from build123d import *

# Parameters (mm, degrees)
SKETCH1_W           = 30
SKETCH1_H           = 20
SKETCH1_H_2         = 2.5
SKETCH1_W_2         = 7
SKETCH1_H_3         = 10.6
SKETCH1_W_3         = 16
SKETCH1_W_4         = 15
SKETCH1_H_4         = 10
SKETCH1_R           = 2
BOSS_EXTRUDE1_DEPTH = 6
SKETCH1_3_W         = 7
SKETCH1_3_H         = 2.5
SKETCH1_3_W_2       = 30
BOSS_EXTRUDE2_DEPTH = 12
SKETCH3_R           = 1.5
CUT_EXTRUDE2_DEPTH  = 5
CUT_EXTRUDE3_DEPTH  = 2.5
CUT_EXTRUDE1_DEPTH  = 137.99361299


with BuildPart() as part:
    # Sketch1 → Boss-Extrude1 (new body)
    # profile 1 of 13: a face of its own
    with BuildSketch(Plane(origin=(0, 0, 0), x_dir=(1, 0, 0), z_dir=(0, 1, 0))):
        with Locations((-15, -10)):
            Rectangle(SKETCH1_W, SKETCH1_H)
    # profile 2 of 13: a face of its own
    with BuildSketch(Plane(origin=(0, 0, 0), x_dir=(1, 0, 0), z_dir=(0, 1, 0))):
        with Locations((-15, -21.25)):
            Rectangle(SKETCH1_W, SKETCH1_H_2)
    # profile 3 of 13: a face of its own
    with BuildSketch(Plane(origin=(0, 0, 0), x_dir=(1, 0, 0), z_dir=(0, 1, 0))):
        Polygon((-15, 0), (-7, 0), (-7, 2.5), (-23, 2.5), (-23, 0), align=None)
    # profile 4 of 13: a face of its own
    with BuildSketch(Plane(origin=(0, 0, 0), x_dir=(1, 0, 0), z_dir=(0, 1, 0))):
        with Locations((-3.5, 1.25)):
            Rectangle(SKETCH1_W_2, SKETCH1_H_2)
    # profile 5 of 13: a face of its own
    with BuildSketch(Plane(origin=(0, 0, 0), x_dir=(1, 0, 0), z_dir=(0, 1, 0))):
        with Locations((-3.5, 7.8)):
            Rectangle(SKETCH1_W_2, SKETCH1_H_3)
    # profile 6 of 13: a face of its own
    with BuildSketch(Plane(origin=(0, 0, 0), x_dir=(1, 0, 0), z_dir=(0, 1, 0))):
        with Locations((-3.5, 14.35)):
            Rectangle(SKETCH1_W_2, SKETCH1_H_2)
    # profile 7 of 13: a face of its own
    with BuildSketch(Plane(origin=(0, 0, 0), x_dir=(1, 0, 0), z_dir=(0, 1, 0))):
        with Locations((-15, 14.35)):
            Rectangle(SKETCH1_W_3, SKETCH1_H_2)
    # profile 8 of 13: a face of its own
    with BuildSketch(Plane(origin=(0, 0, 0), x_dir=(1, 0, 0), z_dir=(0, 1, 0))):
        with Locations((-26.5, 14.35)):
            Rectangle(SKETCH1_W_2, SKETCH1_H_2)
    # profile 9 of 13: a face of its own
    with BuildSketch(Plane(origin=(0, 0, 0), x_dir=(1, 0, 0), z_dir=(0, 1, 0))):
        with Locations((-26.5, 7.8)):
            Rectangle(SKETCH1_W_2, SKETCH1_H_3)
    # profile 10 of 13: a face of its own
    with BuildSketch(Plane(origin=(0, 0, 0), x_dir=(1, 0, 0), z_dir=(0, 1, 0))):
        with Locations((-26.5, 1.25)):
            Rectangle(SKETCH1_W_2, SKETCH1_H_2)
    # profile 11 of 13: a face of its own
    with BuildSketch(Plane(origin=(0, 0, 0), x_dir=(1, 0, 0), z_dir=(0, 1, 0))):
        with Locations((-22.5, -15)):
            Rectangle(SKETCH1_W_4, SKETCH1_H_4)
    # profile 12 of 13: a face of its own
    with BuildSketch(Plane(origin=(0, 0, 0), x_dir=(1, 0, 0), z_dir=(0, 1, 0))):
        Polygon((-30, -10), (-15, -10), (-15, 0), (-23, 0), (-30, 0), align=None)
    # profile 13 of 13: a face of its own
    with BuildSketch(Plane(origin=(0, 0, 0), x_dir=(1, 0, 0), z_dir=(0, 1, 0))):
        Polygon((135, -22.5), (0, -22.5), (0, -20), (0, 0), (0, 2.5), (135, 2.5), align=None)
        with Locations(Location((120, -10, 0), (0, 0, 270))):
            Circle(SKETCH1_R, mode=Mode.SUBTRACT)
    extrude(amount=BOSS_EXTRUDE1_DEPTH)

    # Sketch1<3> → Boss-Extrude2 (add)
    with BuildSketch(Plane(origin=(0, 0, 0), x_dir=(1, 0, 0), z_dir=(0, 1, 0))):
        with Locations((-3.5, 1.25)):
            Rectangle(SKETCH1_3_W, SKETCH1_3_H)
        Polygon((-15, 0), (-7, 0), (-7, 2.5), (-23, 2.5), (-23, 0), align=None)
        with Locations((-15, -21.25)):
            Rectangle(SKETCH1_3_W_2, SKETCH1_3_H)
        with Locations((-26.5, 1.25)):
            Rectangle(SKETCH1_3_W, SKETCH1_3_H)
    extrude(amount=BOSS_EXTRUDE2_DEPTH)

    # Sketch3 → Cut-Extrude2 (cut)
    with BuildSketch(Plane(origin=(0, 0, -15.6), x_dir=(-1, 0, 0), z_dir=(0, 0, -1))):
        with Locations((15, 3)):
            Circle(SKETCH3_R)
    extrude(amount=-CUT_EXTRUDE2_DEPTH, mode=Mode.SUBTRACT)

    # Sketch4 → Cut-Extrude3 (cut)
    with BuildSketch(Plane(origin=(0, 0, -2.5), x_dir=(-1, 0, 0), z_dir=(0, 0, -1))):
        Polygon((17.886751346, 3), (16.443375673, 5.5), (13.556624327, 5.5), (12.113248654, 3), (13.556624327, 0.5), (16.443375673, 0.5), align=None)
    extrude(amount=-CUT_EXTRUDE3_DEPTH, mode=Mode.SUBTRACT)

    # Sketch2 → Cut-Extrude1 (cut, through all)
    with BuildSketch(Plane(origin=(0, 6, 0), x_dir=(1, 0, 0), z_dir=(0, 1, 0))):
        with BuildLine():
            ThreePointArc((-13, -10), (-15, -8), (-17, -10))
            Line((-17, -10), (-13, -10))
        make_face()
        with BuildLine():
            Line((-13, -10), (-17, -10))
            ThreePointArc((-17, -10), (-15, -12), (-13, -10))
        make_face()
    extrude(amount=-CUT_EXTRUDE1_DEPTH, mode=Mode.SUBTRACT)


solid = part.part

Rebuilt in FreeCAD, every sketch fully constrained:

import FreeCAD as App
import Part
import Sketcher
from FreeCAD import Vector
Q = App.Units.Quantity


def add_polygon(sketch, points):
    """Adds a closed chain of lines whose ends are joined by coincident constraints."""
    first, n = sketch.GeometryCount, len(points)
    for a, b in zip(points, points[1:] + points[:1]):
        sketch.addGeometry(Part.LineSegment(App.Vector(*a, 0), App.Vector(*b, 0)), False)
    for i in range(n):
        sketch.addConstraint(Sketcher.Constraint("Coincident", first + i, 2, first + (i + 1) % n, 1))

doc = App.newDocument("Part")
body = doc.addObject("PartDesign::Body", "Body")

sketch1 = body.newObject("Sketcher::SketchObject", "Sketch")
sketch1.AttachmentSupport = (doc.getObject("XZ_Plane"), [""])
sketch1.MapMode = "FlatFace"
add_polygon(sketch1, [(-30, 22.5), (135, 22.5), (135, -2.5), (0, -2.5), (0, -15.6), (-30, -15.6)])
add_polygon(sketch1, [(-7, -2.5), (-23, -2.5), (-23, -13.1), (-7, -13.1)])
sketch1.addGeometry(Part.Circle(Vector(120, 10, 0), Vector(0, 0, 1), 2), False)
sketch1.addConstraint(Sketcher.Constraint("Horizontal", 0))
sketch1.addConstraint(Sketcher.Constraint("Vertical", 1))
sketch1.addConstraint(Sketcher.Constraint("Horizontal", 2))
sketch1.addConstraint(Sketcher.Constraint("Vertical", 3))
sketch1.addConstraint(Sketcher.Constraint("Horizontal", 4))
sketch1.addConstraint(Sketcher.Constraint("Vertical", 5))
sketch1.addConstraint(Sketcher.Constraint("Horizontal", 6))
sketch1.addConstraint(Sketcher.Constraint("Vertical", 7))
sketch1.addConstraint(Sketcher.Constraint("Horizontal", 8))
sketch1.addConstraint(Sketcher.Constraint("Vertical", 9))
sketch1.addConstraint(Sketcher.Constraint("PointOnObject", 2, 2, -2))
sketch1.addConstraint(Sketcher.Constraint("Horizontal", 2, 2, 6, 2))
sketch1.addConstraint(Sketcher.Constraint("Diameter", 10, 4.0))
sketch1.addConstraint(Sketcher.Constraint("DistanceX", 0, 1, 0, 2, 165.0))
sketch1.addConstraint(Sketcher.Constraint("DistanceX", 2, 2, 2, 1, 135.0))
sketch1.addConstraint(Sketcher.Constraint("DistanceX", 6, 2, 6, 1, 16.0))
sketch1.addConstraint(Sketcher.Constraint("DistanceY", 1, 2, 1, 1, 25.0))
sketch1.addConstraint(Sketcher.Constraint("DistanceY", 3, 2, 3, 1, 13.1))
sketch1.addConstraint(Sketcher.Constraint("DistanceY", 7, 2, 7, 1, 10.6))
sketch1.addConstraint(Sketcher.Constraint("DistanceX", -1, 1, 10, 3, 120.0))
sketch1.addConstraint(Sketcher.Constraint("DistanceY", -1, 1, 10, 3, 10.0))
sketch1.addConstraint(Sketcher.Constraint("DistanceX", 6, 2, -1, 1, 23.0))
sketch1.addConstraint(Sketcher.Constraint("DistanceY", -1, 1, 0, 2, 22.5))
pad1 = body.newObject("PartDesign::Pad", "Pad")
pad1.Profile = sketch1
pad1.Length = 6
pad1.Reversed = True

sketch2 = body.newObject("Sketcher::SketchObject", "Sketch001")
sketch2.AttachmentSupport = (doc.getObject("XZ_Plane"), [""])
sketch2.MapMode = "FlatFace"
add_polygon(sketch2, [(0, 0), (0, -2.5), (-30, -2.5), (-30, 0)])
add_polygon(sketch2, [(-30, 20), (-30, 22.5), (0, 22.5), (0, 20)])
sketch2.addConstraint(Sketcher.Constraint("Vertical", 0))
sketch2.addConstraint(Sketcher.Constraint("Horizontal", 1))
sketch2.addConstraint(Sketcher.Constraint("Vertical", 2))
sketch2.addConstraint(Sketcher.Constraint("Horizontal", 3))
sketch2.addConstraint(Sketcher.Constraint("Vertical", 4))
sketch2.addConstraint(Sketcher.Constraint("Horizontal", 5))
sketch2.addConstraint(Sketcher.Constraint("Vertical", 6))
sketch2.addConstraint(Sketcher.Constraint("Horizontal", 7))
sketch2.addConstraint(Sketcher.Constraint("Coincident", 3, 2, -1, 1))
sketch2.addConstraint(Sketcher.Constraint("PointOnObject", 5, 2, -2))
sketch2.addConstraint(Sketcher.Constraint("Vertical", 2, 2, 4, 2))
sketch2.addConstraint(Sketcher.Constraint("Equal", 2, 4))
sketch2.addConstraint(Sketcher.Constraint("DistanceX", 1, 2, 1, 1, 30.0))
sketch2.addConstraint(Sketcher.Constraint("DistanceY", 0, 2, 0, 1, 2.5))
sketch2.addConstraint(Sketcher.Constraint("DistanceY", -1, 1, 6, 2, 20.0))
pad2 = body.newObject("PartDesign::Pad", "Pad001")
pad2.Profile = sketch2
pad2.Length = 12
pad2.Reversed = True

sketch3 = body.newObject("Sketcher::SketchObject", "Sketch002")
sketch3.AttachmentSupport = (doc.getObject("XY_Plane"), [""])
sketch3.MapMode = "FlatFace"
sketch3.AttachmentOffset = App.Placement(Vector(0, 0, -15.6), App.Rotation())
sketch3.addGeometry(Part.Circle(Vector(-15, 3, 0), Vector(0, 0, 1), 1.5), False)
sketch3.addConstraint(Sketcher.Constraint("Diameter", 0, 3.0))
sketch3.addConstraint(Sketcher.Constraint("DistanceX", 0, 3, -1, 1, 15.0))
sketch3.addConstraint(Sketcher.Constraint("DistanceY", -1, 1, 0, 3, 3.0))
pocket1 = body.newObject("PartDesign::Pocket", "Pocket")
pocket1.Profile = sketch3
pocket1.Length = 5
pocket1.Reversed = True

sketch4 = body.newObject("Sketcher::SketchObject", "Sketch003")
sketch4.AttachmentSupport = (doc.getObject("XY_Plane"), [""])
sketch4.MapMode = "FlatFace"
sketch4.AttachmentOffset = App.Placement(Vector(0, 0, -2.5), App.Rotation())
add_polygon(sketch4, [(-17.9, 3), (-16.4, 5.5), (-13.6, 5.5), (-12.1, 3), (-13.6, 0.5), (-16.4, 0.5)])
sketch4.addConstraint(Sketcher.Constraint("Horizontal", 1))
sketch4.addConstraint(Sketcher.Constraint("Horizontal", 4))
sketch4.addConstraint(Sketcher.Constraint("Parallel", 0, 3))
sketch4.addConstraint(Sketcher.Constraint("Parallel", 2, 5))
sketch4.addConstraint(Sketcher.Constraint("Horizontal", 2, 2, 5, 2))
sketch4.addConstraint(Sketcher.Constraint("Vertical", 1, 2, 3, 2))
sketch4.addConstraint(Sketcher.Constraint("Vertical", 0, 2, 4, 2))
sketch4.addConstraint(Sketcher.Constraint("Angle", 0, Q("60 deg")))
sketch4.addConstraint(Sketcher.Constraint("DistanceY", -1, 1, 2, 2, 3.0))
sketch4.addConstraint(Sketcher.Constraint("DistanceY", 3, 2, 1, 2, 5.0))
sketch4.addConstraint(Sketcher.Constraint("DistanceX", 1, 1, 1, 2, 2.886751))
sketch4.addConstraint(Sketcher.Constraint("DistanceX", 2, 2, -1, 1, 12.113249))
pocket2 = body.newObject("PartDesign::Pocket", "Pocket001")
pocket2.Profile = sketch4
pocket2.Length = 2.5
pocket2.Reversed = True

sketch5 = body.newObject("Sketcher::SketchObject", "Sketch004")
sketch5.AttachmentSupport = (doc.getObject("XZ_Plane"), [""])
sketch5.MapMode = "FlatFace"
sketch5.AttachmentOffset = App.Placement(Vector(0, 0, -6), App.Rotation())
sketch5.addGeometry(Part.Circle(Vector(-15, 10, 0), Vector(0, 0, 1), 2), False)
sketch5.addConstraint(Sketcher.Constraint("Diameter", 0, 4.0))
sketch5.addConstraint(Sketcher.Constraint("DistanceX", 0, 3, -1, 1, 15.0))
sketch5.addConstraint(Sketcher.Constraint("DistanceY", -1, 1, 0, 3, 10.0))
pocket3 = body.newObject("PartDesign::Pocket", "Pocket002")
pocket3.Profile = sketch5
pocket3.Type = "ThroughAll"
pocket3.Reversed = True

doc.recompute()
